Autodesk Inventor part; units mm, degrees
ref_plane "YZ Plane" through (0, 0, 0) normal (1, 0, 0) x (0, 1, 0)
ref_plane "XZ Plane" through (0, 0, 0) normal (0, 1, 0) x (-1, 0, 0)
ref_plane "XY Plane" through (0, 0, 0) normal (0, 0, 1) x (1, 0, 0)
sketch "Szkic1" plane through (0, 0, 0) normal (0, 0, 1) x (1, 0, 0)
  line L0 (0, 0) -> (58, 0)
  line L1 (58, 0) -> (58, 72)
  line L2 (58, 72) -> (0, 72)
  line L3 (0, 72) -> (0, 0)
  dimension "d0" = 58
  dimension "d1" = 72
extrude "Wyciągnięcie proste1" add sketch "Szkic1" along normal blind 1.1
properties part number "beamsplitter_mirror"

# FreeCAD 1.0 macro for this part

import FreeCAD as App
import Part
import Sketcher
Q = App.Units.Quantity

doc = App.newDocument("Part")
body = doc.addObject("PartDesign::Body", "Body")

sketch1 = body.newObject("Sketcher::SketchObject", "Sketch")
sketch1.AttachmentSupport = (doc.getObject("XY_Plane"), [""])
sketch1.MapMode = "FlatFace"
sketch1.addGeometry(Part.LineSegment(App.Vector(0, 72, 0), App.Vector(0, 0, 0)), False)
sketch1.addGeometry(Part.LineSegment(App.Vector(0, 0, 0), App.Vector(58, 0, 0)), False)
sketch1.addGeometry(Part.LineSegment(App.Vector(58, 0, 0), App.Vector(58, 72, 0)), False)
sketch1.addGeometry(Part.LineSegment(App.Vector(58, 72, 0), App.Vector(0, 72, 0)), False)
sketch1.addConstraint(Sketcher.Constraint("Coincident", 0, 2, 1, 1))
sketch1.addConstraint(Sketcher.Constraint("Coincident", 1, 2, 2, 1))
sketch1.addConstraint(Sketcher.Constraint("Coincident", 2, 2, 3, 1))
sketch1.addConstraint(Sketcher.Constraint("Coincident", 3, 2, 0, 1))
sketch1.addConstraint(Sketcher.Constraint("Vertical", 0))
sketch1.addConstraint(Sketcher.Constraint("Horizontal", 1))
sketch1.addConstraint(Sketcher.Constraint("Vertical", 2))
sketch1.addConstraint(Sketcher.Constraint("Horizontal", 3))
sketch1.addConstraint(Sketcher.Constraint("Coincident", 0, 2, -1, 1))
sketch1.addConstraint(Sketcher.Constraint("DistanceX", 1, 1, 1, 2, Q("58 mm")))
sketch1.addConstraint(Sketcher.Constraint("DistanceY", 0, 2, 0, 1, Q("72 mm")))
pad1 = body.newObject("PartDesign::Pad", "Pad")
pad1.Profile = sketch1
pad1.Length = 1.1

doc.recompute()
